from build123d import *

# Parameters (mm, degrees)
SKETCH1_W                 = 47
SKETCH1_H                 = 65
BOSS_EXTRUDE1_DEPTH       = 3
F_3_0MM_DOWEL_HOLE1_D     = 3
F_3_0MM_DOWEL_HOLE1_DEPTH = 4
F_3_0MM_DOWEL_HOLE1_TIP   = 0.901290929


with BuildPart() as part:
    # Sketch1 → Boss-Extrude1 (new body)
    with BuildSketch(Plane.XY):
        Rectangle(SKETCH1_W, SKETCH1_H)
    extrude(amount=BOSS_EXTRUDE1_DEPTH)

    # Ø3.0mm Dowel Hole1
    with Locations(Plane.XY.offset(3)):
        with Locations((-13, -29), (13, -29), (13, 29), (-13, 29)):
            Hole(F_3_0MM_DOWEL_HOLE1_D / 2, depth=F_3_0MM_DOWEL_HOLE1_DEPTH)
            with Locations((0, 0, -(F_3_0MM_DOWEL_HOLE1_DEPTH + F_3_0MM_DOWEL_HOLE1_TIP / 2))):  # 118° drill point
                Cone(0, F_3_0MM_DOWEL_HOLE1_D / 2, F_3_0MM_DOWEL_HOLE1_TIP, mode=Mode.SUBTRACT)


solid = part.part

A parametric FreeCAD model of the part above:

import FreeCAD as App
import Part
import Sketcher
from FreeCAD import Vector


def add_polygon(sketch, points):
    """Adds a closed chain of lines whose ends are joined by coincident constraints."""
    first, n = sketch.GeometryCount, len(points)
    for a, b in zip(points, points[1:] + points[:1]):
        sketch.addGeometry(Part.LineSegment(App.Vector(*a, 0), App.Vector(*b, 0)), False)
    for i in range(n):
        sketch.addConstraint(Sketcher.Constraint("Coincident", first + i, 2, first + (i + 1) % n, 1))

doc = App.newDocument("Part")
body = doc.addObject("PartDesign::Body", "Body")

sketch1 = body.newObject("Sketcher::SketchObject", "Sketch")
sketch1.AttachmentSupport = (doc.getObject("XY_Plane"), [""])
sketch1.MapMode = "FlatFace"
add_polygon(sketch1, [(-23.5, 32.5), (-23.5, -32.5), (23.5, -32.5), (23.5, 32.5)])
sketch1.addConstraint([
    Sketcher.Constraint("Vertical", 0),
    Sketcher.Constraint("Horizontal", 1),
    Sketcher.Constraint("Vertical", 2),
    Sketcher.Constraint("Horizontal", 3),
    Sketcher.Constraint("Symmetric", 0, 2, 2, 2, -1, 1),
    Sketcher.Constraint("DistanceX", 1, 1, 1, 2, 47.0),
    Sketcher.Constraint("DistanceY", 0, 2, 0, 1, 65.0),
])
pad1 = body.newObject("PartDesign::Pad", "Pad")
pad1.Profile = sketch1
pad1.Length = 3

sketch2 = body.newObject("Sketcher::SketchObject", "Sketch001")
sketch2.AttachmentSupport = (doc.getObject("XY_Plane"), [""])
sketch2.MapMode = "FlatFace"
sketch2.AttachmentOffset = App.Placement(Vector(0, 0, 3), App.Rotation())
sketch2.addGeometry([
    Part.Circle(Vector(-13, -29, 0), Vector(0, 0, 1), 1.5),
    Part.Circle(Vector(13, -29, 0), Vector(0, 0, 1), 1.5),
    Part.Circle(Vector(13, 29, 0), Vector(0, 0, 1), 1.5),
    Part.Circle(Vector(-13, 29, 0), Vector(0, 0, 1), 1.5),
], False)
sketch2.addConstraint([
    Sketcher.Constraint("Equal", 0, 1),
    Sketcher.Constraint("Equal", 1, 2),
    Sketcher.Constraint("Equal", 2, 3),
    Sketcher.Constraint("Symmetric", 0, 3, 2, 3, -1, 1),
    Sketcher.Constraint("Symmetric", 1, 3, 3, 3, -1, 1),
    Sketcher.Constraint("Symmetric", 0, 3, 1, 3, -2),
    Sketcher.Constraint("Diameter", 0, 3.0),
    Sketcher.Constraint("DistanceX", 0, 3, -1, 1, 13.0),
    Sketcher.Constraint("DistanceY", 0, 3, -1, 1, 29.0),
])
doc.recompute()
hole = body.newObject("PartDesign::Hole", "Hole")
hole.Profile = sketch2
hole.ThreadType = "None"
hole.Diameter = 3
hole.DepthType = "Dimension"
hole.Depth = 4
hole.DrillPoint = "Angled"
hole.DrillPointAngle = 118

doc.recompute()
